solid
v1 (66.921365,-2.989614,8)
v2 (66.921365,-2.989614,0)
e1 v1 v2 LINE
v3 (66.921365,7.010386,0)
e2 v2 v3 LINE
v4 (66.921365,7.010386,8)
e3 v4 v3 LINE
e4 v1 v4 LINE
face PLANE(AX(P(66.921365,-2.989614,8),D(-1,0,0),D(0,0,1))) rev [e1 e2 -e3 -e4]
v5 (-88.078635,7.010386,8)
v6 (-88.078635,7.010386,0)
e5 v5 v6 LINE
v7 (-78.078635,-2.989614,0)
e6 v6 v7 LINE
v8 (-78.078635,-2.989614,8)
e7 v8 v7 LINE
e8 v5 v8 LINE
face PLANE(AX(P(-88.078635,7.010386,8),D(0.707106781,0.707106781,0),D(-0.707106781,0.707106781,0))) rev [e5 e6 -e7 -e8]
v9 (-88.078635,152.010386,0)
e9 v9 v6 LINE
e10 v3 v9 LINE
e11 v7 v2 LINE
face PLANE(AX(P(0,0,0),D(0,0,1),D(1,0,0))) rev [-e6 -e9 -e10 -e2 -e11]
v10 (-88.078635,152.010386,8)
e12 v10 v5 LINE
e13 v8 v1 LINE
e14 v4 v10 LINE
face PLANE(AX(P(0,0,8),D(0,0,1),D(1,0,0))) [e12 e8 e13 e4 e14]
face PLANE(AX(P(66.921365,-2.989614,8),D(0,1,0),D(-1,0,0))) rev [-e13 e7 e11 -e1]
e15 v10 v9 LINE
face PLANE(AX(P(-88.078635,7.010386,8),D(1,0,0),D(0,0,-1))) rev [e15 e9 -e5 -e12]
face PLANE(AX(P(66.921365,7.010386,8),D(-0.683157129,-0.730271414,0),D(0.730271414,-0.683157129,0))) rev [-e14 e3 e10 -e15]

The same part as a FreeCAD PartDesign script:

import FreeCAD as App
import Part
import Sketcher

V = App.Vector
Q = App.Units.Quantity


def add_polygon(sketch, points):
    """Adds a closed chain of lines whose ends are joined by coincident constraints."""
    first, n = sketch.GeometryCount, len(points)
    for a, b in zip(points, points[1:] + points[:1]):
        sketch.addGeometry(Part.LineSegment(App.Vector(*a, 0), App.Vector(*b, 0)), False)
    for i in range(n):
        sketch.addConstraint(Sketcher.Constraint("Coincident", first + i, 2, first + (i + 1) % n, 1))

doc = App.newDocument("Part")
params = doc.addObject("Spreadsheet::Sheet", "Params")
for row, (alias, value) in enumerate([
    ("sketch1_width", "145 mm"),
    ("sketch1_height", "10 mm"),
    ("pad1_length", "8 mm"),
], start=1):
    params.set(f"A{row}", alias)
    params.set(f"B{row}", "=" + value)
    params.setAlias(f"B{row}", alias)

body = doc.addObject("PartDesign::Body", "Body")

# Sketch on XY plane
sketch1 = doc.addObject("Sketcher::SketchObject", "Sketch")
body.addObject(sketch1)
sketch1.AttachmentSupport = (doc.XY_Plane, [""])
sketch1.MapMode = "FlatFace"
add_polygon(sketch1, [(-78, -3), (67, -3), (67, 7), (-88, 152), (-88, 7)])  # lines 0-4
sketch1.addConstraint(Sketcher.Constraint("Horizontal", 0))
sketch1.addConstraint(Sketcher.Constraint("Vertical", 1))
sketch1.addConstraint(Sketcher.Constraint("Vertical", 3))
sketch1.addConstraint(Sketcher.Constraint("Horizontal", 1, 2, 3, 2))
sketch1.addConstraint(Sketcher.Constraint("Equal", 0, 3))
sketch1.addConstraint(Sketcher.Constraint("DistanceX", 0, 1, 0, 2, 145.0))
sketch1.addConstraint(Sketcher.Constraint("DistanceY", 1, 1, 1, 2, 10.0))
sketch1.addConstraint(Sketcher.Constraint("Angle", 4, Q("-45 deg")))
sketch1.addConstraint(Sketcher.Constraint("DistanceX", -1, 1, 0, 2, 66.921365))
sketch1.addConstraint(Sketcher.Constraint("DistanceY", 0, 2, -1, 1, 2.989614))
sketch1.setExpression("Constraints[10]", "Params.sketch1_width")
sketch1.setExpression("Constraints[11]", "Params.sketch1_height")
pad1 = doc.addObject("PartDesign::Pad", "Pad")
body.addObject(pad1)
pad1.Profile = sketch1
pad1.setExpression("Length", "Params.pad1_length")

doc.recompute()
